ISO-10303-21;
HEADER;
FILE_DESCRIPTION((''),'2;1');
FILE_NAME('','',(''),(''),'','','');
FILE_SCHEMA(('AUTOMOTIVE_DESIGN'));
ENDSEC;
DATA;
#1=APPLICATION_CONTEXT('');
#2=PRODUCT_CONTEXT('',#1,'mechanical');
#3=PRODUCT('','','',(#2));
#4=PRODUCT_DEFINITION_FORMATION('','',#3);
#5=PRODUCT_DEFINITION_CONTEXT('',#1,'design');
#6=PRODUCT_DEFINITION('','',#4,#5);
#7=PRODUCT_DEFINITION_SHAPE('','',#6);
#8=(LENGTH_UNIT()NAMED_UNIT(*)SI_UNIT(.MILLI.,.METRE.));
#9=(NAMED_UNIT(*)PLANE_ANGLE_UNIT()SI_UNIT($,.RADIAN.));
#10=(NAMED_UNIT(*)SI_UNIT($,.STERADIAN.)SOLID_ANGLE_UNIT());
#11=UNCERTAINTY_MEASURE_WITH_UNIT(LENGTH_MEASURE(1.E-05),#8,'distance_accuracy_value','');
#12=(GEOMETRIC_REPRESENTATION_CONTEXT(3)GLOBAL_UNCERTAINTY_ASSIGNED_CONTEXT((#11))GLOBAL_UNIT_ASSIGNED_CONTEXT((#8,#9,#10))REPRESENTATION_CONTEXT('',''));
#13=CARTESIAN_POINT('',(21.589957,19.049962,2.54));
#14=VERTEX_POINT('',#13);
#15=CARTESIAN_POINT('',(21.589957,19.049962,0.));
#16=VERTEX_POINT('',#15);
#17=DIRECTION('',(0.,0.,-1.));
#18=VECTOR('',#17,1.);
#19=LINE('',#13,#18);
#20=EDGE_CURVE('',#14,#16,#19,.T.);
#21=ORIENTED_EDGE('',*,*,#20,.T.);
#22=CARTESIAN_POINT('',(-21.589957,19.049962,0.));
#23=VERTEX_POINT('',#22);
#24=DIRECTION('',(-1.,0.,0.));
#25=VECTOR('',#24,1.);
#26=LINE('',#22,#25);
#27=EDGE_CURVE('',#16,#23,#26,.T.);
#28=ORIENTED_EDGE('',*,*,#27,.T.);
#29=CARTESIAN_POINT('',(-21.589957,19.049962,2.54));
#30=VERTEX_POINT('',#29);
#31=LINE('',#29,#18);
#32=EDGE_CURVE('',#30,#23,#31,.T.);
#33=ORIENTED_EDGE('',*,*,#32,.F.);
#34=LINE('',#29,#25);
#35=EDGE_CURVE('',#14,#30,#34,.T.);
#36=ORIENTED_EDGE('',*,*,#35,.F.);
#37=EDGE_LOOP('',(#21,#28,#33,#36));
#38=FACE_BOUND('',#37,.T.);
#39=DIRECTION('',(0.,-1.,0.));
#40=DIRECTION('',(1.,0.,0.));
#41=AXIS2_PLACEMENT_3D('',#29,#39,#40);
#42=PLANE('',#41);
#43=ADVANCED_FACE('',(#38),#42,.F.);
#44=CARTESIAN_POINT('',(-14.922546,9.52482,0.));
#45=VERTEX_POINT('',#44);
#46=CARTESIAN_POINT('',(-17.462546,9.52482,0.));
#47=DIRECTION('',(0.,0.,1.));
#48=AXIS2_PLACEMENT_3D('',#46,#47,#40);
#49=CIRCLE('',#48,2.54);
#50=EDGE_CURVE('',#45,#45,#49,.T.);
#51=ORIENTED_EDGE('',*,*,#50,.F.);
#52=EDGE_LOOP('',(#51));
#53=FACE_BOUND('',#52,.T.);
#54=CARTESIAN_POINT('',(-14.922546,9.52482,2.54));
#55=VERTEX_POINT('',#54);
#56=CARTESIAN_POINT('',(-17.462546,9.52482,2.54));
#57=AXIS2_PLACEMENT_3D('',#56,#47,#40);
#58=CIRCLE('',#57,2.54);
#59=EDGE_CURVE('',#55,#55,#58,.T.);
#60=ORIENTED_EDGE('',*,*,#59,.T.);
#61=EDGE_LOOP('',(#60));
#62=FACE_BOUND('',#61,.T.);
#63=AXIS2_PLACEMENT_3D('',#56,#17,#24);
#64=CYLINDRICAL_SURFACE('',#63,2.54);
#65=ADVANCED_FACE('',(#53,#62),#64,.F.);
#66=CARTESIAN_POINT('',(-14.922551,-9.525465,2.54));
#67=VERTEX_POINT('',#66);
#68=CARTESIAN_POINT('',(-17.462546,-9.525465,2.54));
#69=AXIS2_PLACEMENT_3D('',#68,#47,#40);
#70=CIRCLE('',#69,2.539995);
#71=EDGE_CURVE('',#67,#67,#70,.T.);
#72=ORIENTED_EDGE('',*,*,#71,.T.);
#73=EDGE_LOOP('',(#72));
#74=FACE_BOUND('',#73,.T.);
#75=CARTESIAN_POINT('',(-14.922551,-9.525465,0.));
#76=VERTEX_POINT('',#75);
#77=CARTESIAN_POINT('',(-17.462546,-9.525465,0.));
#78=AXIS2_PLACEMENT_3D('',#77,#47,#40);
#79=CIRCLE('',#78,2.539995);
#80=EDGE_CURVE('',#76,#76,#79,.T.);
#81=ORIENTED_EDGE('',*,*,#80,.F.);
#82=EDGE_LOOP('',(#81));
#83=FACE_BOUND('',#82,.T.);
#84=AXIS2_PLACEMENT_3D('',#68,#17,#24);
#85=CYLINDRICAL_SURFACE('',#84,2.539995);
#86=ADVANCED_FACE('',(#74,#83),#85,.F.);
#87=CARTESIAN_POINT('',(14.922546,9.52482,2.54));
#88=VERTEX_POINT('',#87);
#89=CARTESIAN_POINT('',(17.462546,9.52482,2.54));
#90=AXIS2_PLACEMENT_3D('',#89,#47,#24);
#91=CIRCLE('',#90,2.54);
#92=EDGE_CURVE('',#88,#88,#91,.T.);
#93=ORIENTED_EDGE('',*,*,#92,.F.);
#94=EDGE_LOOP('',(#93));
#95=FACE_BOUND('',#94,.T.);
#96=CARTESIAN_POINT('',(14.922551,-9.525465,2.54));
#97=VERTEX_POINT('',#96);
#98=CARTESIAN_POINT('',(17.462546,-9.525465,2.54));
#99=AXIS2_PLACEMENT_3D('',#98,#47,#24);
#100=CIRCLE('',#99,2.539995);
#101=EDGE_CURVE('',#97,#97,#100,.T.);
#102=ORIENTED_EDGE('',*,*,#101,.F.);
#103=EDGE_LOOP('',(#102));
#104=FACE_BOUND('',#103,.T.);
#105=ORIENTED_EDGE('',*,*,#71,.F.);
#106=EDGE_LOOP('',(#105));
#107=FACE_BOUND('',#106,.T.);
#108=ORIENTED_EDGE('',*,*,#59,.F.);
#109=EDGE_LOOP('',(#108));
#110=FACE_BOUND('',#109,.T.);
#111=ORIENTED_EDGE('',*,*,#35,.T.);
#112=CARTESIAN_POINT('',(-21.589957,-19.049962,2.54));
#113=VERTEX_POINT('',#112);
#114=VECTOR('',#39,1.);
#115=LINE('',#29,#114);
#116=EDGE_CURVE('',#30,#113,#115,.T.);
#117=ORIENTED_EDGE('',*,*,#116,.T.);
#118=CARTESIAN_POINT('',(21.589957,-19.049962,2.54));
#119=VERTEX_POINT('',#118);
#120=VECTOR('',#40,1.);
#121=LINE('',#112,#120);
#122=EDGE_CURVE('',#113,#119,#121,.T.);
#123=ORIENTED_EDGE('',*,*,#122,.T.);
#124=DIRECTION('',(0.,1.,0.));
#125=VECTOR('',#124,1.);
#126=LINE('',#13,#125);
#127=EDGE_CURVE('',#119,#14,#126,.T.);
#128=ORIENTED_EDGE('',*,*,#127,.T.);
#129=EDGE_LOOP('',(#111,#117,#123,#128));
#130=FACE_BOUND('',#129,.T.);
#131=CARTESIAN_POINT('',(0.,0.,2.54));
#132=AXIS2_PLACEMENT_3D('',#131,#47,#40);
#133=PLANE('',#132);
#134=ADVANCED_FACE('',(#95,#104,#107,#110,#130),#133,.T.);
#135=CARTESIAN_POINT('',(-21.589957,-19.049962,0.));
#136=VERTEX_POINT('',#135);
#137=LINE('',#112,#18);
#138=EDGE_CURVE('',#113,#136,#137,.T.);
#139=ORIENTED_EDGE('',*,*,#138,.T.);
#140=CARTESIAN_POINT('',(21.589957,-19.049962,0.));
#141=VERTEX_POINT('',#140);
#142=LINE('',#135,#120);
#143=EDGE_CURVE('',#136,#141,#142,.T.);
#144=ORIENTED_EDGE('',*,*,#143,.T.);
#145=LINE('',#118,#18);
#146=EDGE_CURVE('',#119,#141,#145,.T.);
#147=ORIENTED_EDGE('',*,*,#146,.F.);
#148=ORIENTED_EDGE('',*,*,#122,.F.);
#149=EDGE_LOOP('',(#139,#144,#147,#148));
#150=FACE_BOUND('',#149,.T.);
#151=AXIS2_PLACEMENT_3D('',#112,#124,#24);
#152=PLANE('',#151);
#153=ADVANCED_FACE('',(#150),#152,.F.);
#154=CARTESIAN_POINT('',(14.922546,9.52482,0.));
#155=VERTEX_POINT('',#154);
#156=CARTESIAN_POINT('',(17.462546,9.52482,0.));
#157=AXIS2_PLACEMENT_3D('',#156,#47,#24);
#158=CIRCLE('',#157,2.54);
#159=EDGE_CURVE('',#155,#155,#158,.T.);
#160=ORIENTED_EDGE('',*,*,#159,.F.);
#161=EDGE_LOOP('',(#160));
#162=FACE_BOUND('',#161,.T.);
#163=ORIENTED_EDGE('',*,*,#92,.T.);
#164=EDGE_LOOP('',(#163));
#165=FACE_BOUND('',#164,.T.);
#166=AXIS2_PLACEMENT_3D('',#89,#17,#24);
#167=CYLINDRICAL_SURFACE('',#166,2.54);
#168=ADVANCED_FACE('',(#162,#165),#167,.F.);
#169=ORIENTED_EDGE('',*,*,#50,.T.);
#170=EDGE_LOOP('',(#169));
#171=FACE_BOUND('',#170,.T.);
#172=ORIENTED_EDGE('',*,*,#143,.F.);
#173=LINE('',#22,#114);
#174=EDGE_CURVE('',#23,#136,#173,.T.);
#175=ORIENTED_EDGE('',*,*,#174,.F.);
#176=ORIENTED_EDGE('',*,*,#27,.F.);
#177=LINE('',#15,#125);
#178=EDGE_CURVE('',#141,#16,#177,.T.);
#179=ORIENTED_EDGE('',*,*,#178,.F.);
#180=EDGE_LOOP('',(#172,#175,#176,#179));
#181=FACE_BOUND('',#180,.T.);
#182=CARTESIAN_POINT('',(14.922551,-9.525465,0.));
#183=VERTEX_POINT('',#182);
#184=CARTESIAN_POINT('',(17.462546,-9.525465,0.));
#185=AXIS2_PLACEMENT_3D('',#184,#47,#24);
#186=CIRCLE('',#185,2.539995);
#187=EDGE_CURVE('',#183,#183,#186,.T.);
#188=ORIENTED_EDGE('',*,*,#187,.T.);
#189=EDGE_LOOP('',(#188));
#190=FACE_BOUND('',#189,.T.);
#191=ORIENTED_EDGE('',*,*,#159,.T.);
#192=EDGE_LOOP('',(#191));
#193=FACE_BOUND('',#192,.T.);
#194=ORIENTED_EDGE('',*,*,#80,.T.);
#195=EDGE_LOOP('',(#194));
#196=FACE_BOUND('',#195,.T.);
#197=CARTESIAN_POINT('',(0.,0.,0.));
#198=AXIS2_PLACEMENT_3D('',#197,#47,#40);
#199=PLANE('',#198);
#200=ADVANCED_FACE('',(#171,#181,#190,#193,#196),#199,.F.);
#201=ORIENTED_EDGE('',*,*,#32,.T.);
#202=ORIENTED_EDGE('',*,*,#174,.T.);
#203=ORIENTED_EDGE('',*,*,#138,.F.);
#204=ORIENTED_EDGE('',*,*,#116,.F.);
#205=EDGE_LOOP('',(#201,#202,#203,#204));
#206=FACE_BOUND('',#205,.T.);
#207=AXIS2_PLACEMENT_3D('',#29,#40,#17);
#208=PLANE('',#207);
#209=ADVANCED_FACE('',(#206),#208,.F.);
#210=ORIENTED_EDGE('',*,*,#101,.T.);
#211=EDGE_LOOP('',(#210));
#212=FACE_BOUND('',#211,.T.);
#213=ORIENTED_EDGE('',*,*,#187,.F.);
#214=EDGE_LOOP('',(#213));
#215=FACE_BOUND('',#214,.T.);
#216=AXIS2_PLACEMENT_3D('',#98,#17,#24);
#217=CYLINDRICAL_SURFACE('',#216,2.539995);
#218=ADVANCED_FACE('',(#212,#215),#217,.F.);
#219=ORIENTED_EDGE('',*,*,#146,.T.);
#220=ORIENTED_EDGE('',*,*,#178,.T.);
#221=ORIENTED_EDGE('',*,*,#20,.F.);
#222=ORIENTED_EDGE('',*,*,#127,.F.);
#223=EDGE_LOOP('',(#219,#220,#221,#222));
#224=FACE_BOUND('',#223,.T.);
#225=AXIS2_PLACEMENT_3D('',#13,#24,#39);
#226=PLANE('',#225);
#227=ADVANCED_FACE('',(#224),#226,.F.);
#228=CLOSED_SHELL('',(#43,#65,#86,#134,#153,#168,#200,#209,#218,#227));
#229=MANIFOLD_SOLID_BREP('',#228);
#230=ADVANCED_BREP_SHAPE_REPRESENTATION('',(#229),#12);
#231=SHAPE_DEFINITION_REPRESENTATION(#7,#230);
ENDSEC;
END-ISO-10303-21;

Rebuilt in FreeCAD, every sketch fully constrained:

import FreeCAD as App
import Part
import Sketcher
from FreeCAD import Vector
Q = App.Units.Quantity

doc = App.newDocument("Part")
body = doc.addObject("PartDesign::Body", "Body")

sketch1 = body.newObject("Sketcher::SketchObject", "Sketch")
sketch1.AttachmentSupport = (doc.getObject("XY_Plane"), [""])
sketch1.MapMode = "FlatFace"
sketch1.addGeometry([
    Part.LineSegment(Vector(-21.6, 19, 0), Vector(-21.6, -19, 0)),
    Part.LineSegment(Vector(-21.6, -19, 0), Vector(21.6, -19, 0)),
    Part.LineSegment(Vector(21.6, -19, 0), Vector(21.6, 19, 0)),
    Part.LineSegment(Vector(21.6, 19, 0), Vector(-21.6, 19, 0)),
    Part.Circle(Vector(-17.5, -9.5, 0), Vector(0, 0, 1), 2.5),
    Part.Circle(Vector(17.5, -9.5, 0), Vector(0, 0, 1), 2.5),
    Part.Circle(Vector(-17.5, 9.5, 0), Vector(0, 0, 1), 2.5),
    Part.Circle(Vector(17.5, 9.5, 0), Vector(0, 0, 1), 2.5),
], False)
sketch1.addConstraint([
    Sketcher.Constraint("Coincident", 0, 2, 1, 1),
    Sketcher.Constraint("Coincident", 1, 2, 2, 1),
    Sketcher.Constraint("Coincident", 2, 2, 3, 1),
    Sketcher.Constraint("Coincident", 3, 2, 0, 1),
    Sketcher.Constraint("Vertical", 0),
    Sketcher.Constraint("Horizontal", 1),
    Sketcher.Constraint("Vertical", 2),
    Sketcher.Constraint("Horizontal", 3),
    Sketcher.Constraint("Equal", 4, 5),
    Sketcher.Constraint("Equal", 6, 7),
    Sketcher.Constraint("Symmetric", 0, 2, 2, 2, -1, 1),
    Sketcher.Constraint("Symmetric", 4, 3, 5, 3, -2),
    Sketcher.Constraint("Symmetric", 6, 3, 7, 3, -2),
    Sketcher.Constraint("Vertical", 4, 3, 6, 3),
    Sketcher.Constraint("Diameter", 6, Q("0.2 in")),
    Sketcher.Constraint("Diameter", 4, Q("5.07999 mm")),
    Sketcher.Constraint("DistanceX", 0, 2, 5, 3, Q("1.5375001 in")),
    Sketcher.Constraint("DistanceX", 1, 1, 1, 2, Q("43.179914 mm")),
    Sketcher.Constraint("DistanceY", 0, 2, 0, 1, Q("38.099924 mm")),
    Sketcher.Constraint("DistanceY", -1, 1, 6, 3, Q("9.52482 mm")),
    Sketcher.Constraint("DistanceY", 4, 3, -1, 1, Q("9.525465 mm")),
])
pad1 = body.newObject("PartDesign::Pad", "Pad")
pad1.Profile = sketch1
pad1.Length = Q("0.1 in")

doc.recompute()
